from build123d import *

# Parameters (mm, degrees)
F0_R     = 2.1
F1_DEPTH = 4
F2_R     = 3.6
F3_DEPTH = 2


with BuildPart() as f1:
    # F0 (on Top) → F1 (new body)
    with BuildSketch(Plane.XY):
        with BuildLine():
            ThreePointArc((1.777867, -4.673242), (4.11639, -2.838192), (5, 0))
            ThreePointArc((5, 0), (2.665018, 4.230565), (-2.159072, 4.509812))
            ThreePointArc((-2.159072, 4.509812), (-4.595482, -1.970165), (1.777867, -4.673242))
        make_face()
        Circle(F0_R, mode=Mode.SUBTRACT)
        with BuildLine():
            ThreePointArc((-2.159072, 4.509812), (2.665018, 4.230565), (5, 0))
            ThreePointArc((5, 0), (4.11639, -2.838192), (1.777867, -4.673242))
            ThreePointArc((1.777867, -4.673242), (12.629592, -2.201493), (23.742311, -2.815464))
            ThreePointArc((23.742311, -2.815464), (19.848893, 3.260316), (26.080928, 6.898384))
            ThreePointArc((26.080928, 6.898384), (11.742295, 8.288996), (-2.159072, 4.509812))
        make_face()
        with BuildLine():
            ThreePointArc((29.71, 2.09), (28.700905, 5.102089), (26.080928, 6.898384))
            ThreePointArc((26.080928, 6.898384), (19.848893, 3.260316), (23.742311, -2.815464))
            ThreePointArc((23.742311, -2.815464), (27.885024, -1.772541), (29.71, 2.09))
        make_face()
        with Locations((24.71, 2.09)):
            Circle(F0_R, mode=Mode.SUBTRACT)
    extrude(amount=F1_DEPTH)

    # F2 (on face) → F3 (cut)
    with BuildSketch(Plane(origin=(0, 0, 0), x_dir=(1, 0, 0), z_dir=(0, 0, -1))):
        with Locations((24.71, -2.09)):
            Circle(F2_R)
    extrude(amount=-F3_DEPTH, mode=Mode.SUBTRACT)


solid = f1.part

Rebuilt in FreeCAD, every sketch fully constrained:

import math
import FreeCAD as App
import Part
import Sketcher
from FreeCAD import Vector

doc = App.newDocument("Part")
params = doc.addObject("Spreadsheet::Sheet", "Params")
for row, (alias, value) in enumerate([
    ("sketch1_radius", "5 mm"),
    ("sketch1_radius2", "40.000002 mm"),
    ("sketch1_diameter", "4.2 mm"),
    ("pad1_length", "4 mm"),
    ("sketch2_diameter", "7.2 mm"),
    ("pocket1_length", "2 mm"),
], start=1):
    params.set(f"A{row}", alias)
    params.set(f"B{row}", "=" + value)
    params.setAlias(f"B{row}", alias)

body = doc.addObject("PartDesign::Body", "Body")

# Sketch on XY plane
sketch1 = body.newObject("Sketcher::SketchObject", "Sketch")
sketch1.AttachmentSupport = (doc.getObject("XY_Plane"), [""])
sketch1.MapMode = "FlatFace"
sketch1.addGeometry([
    Part.ArcOfCircle(Part.Circle(Vector(0, -0.000001, 0), Vector(0, 0, 1), 5), math.radians(115.582757), math.radians(290.828597)),  # 0
    Part.ArcOfCircle(Part.Circle(Vector(16.0008, -42.059165, 0), Vector(0, 0, 1), 39.999988), math.radians(78.84068), math.radians(110.828593)),  # 1
    Part.ArcOfCircle(Part.Circle(Vector(24.71, 2.09, 0), Vector(0, 0, 1), 5), math.radians(-101.159321), math.radians(0.000002)),  # 2
    Part.ArcOfCircle(Part.Circle(Vector(24.710001, 2.090001, 0), Vector(0, 0, 1), 4.999999), math.radians(-0.00001), math.radians(74.086522)),  # 3
    Part.ArcOfCircle(Part.Circle(Vector(15.113504, -31.568689, 0), Vector(0, 0, 1), 40.000002), math.radians(74.086513), math.radians(115.58276)),  # 4
    Part.Circle(Vector(0, 0, 0), Vector(0, 0, 1), 2.1),  # 5
    Part.Circle(Vector(24.71, 2.09, 0), Vector(0, 0, 1), 2.1),  # 6
], False)
sketch1.addConstraint([
    Sketcher.Constraint("Tangent", 0, 2, 1, 2),
    Sketcher.Constraint("Tangent", 1, 1, 2, 1),
    Sketcher.Constraint("Tangent", 2, 2, 3, 1),
    Sketcher.Constraint("Tangent", 3, 2, 4, 1),
    Sketcher.Constraint("Tangent", 4, 2, 0, 1),
    Sketcher.Constraint("Coincident", 0, 3, -1, 1),
    Sketcher.Constraint("Coincident", 5, 3, -1, 1),
    Sketcher.Constraint("Coincident", 6, 3, 2, 3),
    Sketcher.Constraint("Equal", 0, 2),
    Sketcher.Constraint("Equal", 2, 3),
    Sketcher.Constraint("Equal", 5, 6),
    Sketcher.Constraint("Horizontal", 6, 3, 2, 2),
    Sketcher.Constraint("Radius", 0, 5.0),
    Sketcher.Constraint("Radius", 4, 40.000002),
    Sketcher.Constraint("Diameter", 5, 4.2),
    Sketcher.Constraint("DistanceX", -1, 1, 2, 3, 24.71),
    Sketcher.Constraint("DistanceY", -1, 1, 2, 3, 2.09),
    Sketcher.Constraint("Radius", 1, 39.999988),
])
sketch1.setExpression("Constraints[12]", "Params.sketch1_radius")
sketch1.setExpression("Constraints[13]", "Params.sketch1_radius2")
sketch1.setExpression("Constraints[14]", "Params.sketch1_diameter")
pad1 = body.newObject("PartDesign::Pad", "Pad")
pad1.Profile = sketch1
pad1.setExpression("Length", "Params.pad1_length")

# Sketch on XY plane
sketch2 = body.newObject("Sketcher::SketchObject", "Sketch001")
sketch2.AttachmentSupport = (doc.getObject("XY_Plane"), [""])
sketch2.MapMode = "FlatFace"
sketch2.addGeometry(Part.Circle(Vector(24.71, 2.09, 0), Vector(0, 0, 1), 3.6), False)
sketch2.addConstraint([
    Sketcher.Constraint("Diameter", 0, 7.2),
    Sketcher.Constraint("DistanceX", -1, 1, 0, 3, 24.71),
    Sketcher.Constraint("DistanceY", -1, 1, 0, 3, 2.09),
])
sketch2.setExpression("Constraints[0]", "Params.sketch2_diameter")
pocket1 = body.newObject("PartDesign::Pocket", "Pocket")
pocket1.Profile = sketch2
pocket1.setExpression("Length", "Params.pocket1_length")
pocket1.Reversed = True

doc.recompute()
